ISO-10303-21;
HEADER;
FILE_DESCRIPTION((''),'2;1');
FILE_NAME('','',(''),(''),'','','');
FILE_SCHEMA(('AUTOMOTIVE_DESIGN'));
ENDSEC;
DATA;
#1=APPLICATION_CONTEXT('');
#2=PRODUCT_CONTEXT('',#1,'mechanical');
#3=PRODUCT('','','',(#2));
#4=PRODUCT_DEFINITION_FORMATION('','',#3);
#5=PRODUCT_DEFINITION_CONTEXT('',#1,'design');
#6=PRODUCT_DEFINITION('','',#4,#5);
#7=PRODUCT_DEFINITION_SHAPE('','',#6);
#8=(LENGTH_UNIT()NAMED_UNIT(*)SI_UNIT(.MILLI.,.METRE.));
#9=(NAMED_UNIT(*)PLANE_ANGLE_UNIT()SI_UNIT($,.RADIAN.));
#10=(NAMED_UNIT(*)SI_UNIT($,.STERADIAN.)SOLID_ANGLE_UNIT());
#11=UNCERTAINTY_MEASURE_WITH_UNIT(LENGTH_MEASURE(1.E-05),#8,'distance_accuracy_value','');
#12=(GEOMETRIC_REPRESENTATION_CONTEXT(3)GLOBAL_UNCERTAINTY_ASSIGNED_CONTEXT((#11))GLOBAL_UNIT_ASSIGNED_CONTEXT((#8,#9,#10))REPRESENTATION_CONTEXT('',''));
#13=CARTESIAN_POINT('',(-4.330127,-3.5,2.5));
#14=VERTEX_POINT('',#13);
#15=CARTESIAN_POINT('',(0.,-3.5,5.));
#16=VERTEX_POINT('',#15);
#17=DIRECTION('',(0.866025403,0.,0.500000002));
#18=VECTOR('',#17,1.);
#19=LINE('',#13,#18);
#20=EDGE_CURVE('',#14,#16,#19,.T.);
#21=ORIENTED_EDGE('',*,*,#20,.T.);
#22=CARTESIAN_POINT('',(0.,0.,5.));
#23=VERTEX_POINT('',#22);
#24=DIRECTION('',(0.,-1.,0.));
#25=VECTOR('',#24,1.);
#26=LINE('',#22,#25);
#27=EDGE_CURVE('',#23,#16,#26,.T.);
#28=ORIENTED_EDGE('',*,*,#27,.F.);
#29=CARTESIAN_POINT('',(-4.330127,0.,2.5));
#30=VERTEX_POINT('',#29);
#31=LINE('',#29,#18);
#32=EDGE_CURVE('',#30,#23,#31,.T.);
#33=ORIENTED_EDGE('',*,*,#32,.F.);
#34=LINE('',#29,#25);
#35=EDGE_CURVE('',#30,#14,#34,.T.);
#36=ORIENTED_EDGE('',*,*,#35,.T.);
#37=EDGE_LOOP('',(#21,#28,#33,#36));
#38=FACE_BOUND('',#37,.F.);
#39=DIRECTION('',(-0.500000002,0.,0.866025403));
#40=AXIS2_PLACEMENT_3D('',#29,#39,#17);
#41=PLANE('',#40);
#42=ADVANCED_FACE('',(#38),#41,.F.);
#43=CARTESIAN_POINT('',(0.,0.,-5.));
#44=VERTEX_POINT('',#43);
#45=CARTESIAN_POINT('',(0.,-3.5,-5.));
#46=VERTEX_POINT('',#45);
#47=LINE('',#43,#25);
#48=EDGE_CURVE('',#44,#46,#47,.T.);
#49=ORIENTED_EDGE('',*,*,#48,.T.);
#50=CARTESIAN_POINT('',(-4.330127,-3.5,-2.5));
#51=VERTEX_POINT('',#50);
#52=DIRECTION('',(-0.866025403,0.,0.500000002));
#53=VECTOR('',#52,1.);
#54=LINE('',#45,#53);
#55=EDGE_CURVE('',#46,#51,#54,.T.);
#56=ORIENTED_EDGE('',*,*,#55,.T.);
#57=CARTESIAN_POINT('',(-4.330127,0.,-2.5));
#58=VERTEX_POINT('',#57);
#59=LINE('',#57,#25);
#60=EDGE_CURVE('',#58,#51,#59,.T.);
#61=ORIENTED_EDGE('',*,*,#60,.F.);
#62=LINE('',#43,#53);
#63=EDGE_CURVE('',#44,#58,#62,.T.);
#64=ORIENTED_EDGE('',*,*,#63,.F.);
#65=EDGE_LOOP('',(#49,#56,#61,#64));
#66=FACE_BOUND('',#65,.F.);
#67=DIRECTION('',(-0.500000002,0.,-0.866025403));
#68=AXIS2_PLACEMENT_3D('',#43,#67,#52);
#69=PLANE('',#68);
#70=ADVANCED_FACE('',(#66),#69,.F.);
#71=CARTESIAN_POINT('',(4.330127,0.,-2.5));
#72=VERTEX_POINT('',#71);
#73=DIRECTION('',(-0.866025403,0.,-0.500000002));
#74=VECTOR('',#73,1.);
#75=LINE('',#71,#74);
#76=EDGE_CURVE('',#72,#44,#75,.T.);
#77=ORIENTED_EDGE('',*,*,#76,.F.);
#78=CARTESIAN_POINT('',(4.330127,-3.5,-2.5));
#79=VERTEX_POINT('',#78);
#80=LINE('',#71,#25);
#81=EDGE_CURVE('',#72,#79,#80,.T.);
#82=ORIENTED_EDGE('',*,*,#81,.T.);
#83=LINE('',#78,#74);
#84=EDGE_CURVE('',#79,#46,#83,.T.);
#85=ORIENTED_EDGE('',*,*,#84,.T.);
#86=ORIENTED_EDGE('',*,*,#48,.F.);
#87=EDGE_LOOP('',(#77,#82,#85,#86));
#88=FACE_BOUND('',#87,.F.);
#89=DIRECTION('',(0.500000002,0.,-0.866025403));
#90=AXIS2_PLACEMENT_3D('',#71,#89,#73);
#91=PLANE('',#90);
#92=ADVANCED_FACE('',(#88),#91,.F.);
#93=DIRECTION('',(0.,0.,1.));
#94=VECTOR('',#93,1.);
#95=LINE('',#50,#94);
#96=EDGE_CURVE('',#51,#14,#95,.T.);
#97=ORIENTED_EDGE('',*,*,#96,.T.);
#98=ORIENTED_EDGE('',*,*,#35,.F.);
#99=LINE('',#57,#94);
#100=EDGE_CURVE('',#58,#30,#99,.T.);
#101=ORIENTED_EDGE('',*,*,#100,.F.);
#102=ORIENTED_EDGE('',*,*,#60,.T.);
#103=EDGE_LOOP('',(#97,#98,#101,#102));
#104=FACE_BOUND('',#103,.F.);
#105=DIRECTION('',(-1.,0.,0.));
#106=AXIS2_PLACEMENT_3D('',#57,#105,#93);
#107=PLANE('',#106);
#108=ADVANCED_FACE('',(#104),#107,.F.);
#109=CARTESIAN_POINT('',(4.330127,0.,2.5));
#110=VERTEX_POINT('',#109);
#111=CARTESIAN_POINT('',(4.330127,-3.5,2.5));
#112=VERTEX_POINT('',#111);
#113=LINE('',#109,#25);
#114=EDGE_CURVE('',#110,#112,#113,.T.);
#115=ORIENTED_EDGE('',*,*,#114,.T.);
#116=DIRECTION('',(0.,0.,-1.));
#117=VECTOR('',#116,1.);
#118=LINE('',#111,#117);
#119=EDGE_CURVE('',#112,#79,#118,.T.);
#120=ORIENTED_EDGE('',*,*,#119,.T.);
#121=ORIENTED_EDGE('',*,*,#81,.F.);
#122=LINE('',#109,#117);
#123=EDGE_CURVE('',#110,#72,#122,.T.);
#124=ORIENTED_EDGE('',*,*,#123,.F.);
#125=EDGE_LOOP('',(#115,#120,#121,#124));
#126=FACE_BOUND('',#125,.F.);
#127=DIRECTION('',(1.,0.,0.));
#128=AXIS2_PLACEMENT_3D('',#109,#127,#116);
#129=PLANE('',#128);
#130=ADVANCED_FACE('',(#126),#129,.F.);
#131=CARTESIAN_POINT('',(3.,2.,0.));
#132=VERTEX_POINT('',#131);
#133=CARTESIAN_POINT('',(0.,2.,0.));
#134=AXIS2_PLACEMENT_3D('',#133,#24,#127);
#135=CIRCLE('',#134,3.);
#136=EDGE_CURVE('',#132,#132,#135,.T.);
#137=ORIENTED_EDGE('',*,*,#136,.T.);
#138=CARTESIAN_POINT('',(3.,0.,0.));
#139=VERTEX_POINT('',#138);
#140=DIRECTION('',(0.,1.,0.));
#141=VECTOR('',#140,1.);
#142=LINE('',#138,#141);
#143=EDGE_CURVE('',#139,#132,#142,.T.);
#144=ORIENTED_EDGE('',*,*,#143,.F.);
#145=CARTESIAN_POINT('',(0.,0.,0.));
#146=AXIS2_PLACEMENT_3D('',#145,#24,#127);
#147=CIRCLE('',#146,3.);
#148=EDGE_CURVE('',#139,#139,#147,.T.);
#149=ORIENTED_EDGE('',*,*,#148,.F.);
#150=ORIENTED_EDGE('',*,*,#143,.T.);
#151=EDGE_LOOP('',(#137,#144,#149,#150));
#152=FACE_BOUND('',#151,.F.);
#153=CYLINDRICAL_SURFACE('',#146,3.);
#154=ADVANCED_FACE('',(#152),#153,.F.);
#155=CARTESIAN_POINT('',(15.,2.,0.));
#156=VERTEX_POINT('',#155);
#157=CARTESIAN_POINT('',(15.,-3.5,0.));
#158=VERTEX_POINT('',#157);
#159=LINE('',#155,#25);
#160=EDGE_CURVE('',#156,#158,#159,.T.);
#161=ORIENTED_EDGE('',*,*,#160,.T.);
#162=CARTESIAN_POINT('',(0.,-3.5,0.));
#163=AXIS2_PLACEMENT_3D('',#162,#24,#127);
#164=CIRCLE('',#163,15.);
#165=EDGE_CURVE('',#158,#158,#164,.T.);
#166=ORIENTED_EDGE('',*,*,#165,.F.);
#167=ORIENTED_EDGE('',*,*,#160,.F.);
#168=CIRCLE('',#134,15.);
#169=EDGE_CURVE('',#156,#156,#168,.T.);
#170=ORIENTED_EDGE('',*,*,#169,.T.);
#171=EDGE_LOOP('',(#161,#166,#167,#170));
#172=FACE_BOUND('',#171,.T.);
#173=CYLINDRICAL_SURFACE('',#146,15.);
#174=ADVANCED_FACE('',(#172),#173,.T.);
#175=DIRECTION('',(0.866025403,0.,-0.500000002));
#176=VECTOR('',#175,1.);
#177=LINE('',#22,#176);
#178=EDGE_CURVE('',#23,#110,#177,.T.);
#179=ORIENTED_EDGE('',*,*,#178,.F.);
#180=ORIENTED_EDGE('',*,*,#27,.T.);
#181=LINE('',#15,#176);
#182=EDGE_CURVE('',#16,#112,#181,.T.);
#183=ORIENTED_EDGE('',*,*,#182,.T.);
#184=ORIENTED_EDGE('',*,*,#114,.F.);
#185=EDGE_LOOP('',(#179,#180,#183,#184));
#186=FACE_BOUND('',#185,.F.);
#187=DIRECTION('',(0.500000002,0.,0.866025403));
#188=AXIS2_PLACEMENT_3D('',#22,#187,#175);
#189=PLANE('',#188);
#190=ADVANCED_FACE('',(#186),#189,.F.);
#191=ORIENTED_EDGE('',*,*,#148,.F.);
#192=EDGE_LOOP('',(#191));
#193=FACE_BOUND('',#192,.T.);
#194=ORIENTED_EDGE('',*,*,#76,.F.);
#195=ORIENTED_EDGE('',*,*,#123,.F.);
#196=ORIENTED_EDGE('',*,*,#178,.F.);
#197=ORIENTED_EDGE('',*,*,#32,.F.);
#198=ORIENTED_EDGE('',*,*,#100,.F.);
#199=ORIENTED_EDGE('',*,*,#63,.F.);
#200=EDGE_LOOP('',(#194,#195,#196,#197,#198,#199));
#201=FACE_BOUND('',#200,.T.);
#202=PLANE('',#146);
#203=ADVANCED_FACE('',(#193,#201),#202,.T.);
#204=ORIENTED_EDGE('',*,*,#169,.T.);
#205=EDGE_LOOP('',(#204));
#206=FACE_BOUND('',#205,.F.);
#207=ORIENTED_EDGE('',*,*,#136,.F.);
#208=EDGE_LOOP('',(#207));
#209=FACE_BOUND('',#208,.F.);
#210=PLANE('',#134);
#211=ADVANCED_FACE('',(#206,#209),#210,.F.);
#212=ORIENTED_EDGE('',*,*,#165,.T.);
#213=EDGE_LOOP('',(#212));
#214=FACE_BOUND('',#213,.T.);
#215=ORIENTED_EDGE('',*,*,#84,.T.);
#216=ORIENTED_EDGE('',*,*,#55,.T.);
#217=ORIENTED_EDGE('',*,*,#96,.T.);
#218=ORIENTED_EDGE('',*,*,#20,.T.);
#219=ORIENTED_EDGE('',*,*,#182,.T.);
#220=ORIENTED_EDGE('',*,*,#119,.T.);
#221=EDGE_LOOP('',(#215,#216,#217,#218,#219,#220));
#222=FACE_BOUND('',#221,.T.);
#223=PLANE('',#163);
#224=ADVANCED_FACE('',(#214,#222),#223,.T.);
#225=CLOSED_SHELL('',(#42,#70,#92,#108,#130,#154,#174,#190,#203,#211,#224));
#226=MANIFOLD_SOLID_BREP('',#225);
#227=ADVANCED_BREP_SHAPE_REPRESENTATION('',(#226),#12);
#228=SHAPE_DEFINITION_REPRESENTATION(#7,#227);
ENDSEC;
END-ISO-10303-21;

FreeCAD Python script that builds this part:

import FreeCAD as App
import Part
import Sketcher
Q = App.Units.Quantity


def add_polygon(sketch, points):
    """Adds a closed chain of lines whose ends are joined by coincident constraints."""
    first, n = sketch.GeometryCount, len(points)
    for a, b in zip(points, points[1:] + points[:1]):
        sketch.addGeometry(Part.LineSegment(App.Vector(*a, 0), App.Vector(*b, 0)), False)
    for i in range(n):
        sketch.addConstraint(Sketcher.Constraint("Coincident", first + i, 2, first + (i + 1) % n, 1))

doc = App.newDocument("Part")
body = doc.addObject("PartDesign::Body", "Body")

sketch1 = doc.addObject("Sketcher::SketchObject", "Sketch")
body.addObject(sketch1)
sketch1.AttachmentSupport = (doc.XZ_Plane, [""])
sketch1.MapMode = "FlatFace"
sketch1.addGeometry(Part.Circle(App.Vector(0, 0, 0), App.Vector(0, 0, 1), 15), False)
add_polygon(sketch1, [(-4.330127, -2.5), (-4.330127, 2.5), (0, 5), (4.330127, 2.5), (4.330127, -2.5), (0, -5)])
sketch1.addConstraint([
    Sketcher.Constraint("Vertical", 1),
    Sketcher.Constraint("Vertical", 4),
    Sketcher.Constraint("Coincident", 0, 3, -1, 1),
    Sketcher.Constraint("Symmetric", 1, 2, 4, 2, -1, 1),
    Sketcher.Constraint("Symmetric", 2, 2, 5, 2, -1, 1),
    Sketcher.Constraint("PointOnObject", 2, 2, -2),
    Sketcher.Constraint("Parallel", 3, 6),
    Sketcher.Constraint("Horizontal", 1, 2, 3, 2),
    Sketcher.Constraint("Diameter", 0, Q("30 mm")),
    Sketcher.Constraint("DistanceY", 1, 1, 1, 2, Q("5 mm")),
    Sketcher.Constraint("Angle", 2, Q("30 deg")),
    Sketcher.Constraint("Distance", 2, Q("5 mm")),
])
pad1 = doc.addObject("PartDesign::Pad", "Pad")
body.addObject(pad1)
pad1.Profile = sketch1
pad1.Length = 3.5

sketch2 = doc.addObject("Sketcher::SketchObject", "Sketch001")
body.addObject(sketch2)
sketch2.AttachmentSupport = (doc.XZ_Plane, [""])
sketch2.MapMode = "FlatFace"
sketch2.addGeometry([
    Part.Circle(App.Vector(0, 0, 0), App.Vector(0, 0, 1), 15),
    Part.Circle(App.Vector(0, 0, 0), App.Vector(0, 0, 1), 3),
], False)
sketch2.addConstraint([
    Sketcher.Constraint("Coincident", 0, 3, -1, 1),
    Sketcher.Constraint("Coincident", 1, 3, -1, 1),
    Sketcher.Constraint("Diameter", 0, Q("30 mm")),
    Sketcher.Constraint("Diameter", 1, Q("6 mm")),
])
pad2 = doc.addObject("PartDesign::Pad", "Pad001")
body.addObject(pad2)
pad2.Profile = sketch2
pad2.Length = 2
pad2.Reversed = True

doc.recompute()
